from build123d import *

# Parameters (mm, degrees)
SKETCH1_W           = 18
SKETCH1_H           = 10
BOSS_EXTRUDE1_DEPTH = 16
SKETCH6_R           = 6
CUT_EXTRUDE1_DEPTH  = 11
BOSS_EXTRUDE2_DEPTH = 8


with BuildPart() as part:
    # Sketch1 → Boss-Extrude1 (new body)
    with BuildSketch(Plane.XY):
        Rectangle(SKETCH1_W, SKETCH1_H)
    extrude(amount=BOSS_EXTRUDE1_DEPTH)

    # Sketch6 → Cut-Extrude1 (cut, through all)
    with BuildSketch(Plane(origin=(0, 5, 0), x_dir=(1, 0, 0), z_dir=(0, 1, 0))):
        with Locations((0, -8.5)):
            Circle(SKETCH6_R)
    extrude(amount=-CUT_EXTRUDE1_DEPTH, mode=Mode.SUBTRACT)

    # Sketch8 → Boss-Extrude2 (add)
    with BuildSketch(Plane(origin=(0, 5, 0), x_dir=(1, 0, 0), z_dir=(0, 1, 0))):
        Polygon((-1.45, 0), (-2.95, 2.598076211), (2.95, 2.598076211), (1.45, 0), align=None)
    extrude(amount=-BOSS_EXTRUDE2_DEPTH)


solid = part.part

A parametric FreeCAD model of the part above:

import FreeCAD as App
import Part
import Sketcher

V = App.Vector
Q = App.Units.Quantity


def add_polygon(sketch, points):
    """Adds a closed chain of lines whose ends are joined by coincident constraints."""
    first, n = sketch.GeometryCount, len(points)
    for a, b in zip(points, points[1:] + points[:1]):
        sketch.addGeometry(Part.LineSegment(App.Vector(*a, 0), App.Vector(*b, 0)), False)
    for i in range(n):
        sketch.addConstraint(Sketcher.Constraint("Coincident", first + i, 2, first + (i + 1) % n, 1))

doc = App.newDocument("Part")
body = doc.addObject("PartDesign::Body", "Body")

# Sketch on XY plane
sketch1 = body.newObject("Sketcher::SketchObject", "Sketch")
sketch1.AttachmentSupport = (doc.getObject("XY_Plane"), [""])
sketch1.MapMode = "FlatFace"
add_polygon(sketch1, [(-9, 5), (-9, -5), (9, -5), (9, 5)])  # lines 0-3
sketch1.addConstraint(Sketcher.Constraint("Vertical", 0))
sketch1.addConstraint(Sketcher.Constraint("Horizontal", 1))
sketch1.addConstraint(Sketcher.Constraint("Vertical", 2))
sketch1.addConstraint(Sketcher.Constraint("Horizontal", 3))
sketch1.addConstraint(Sketcher.Constraint("Symmetric", 0, 2, 2, 2, -1, 1))
sketch1.addConstraint(Sketcher.Constraint("DistanceX", 1, 1, 1, 2, Q("18 mm")))
sketch1.addConstraint(Sketcher.Constraint("DistanceY", 0, 2, 0, 1, Q("10 mm")))
pad1 = body.newObject("PartDesign::Pad", "Pad")
pad1.Profile = sketch1
pad1.Length = 16

# Sketch on XZ plane
sketch2 = body.newObject("Sketcher::SketchObject", "Sketch001")
sketch2.AttachmentSupport = (doc.getObject("XZ_Plane"), [""])
sketch2.MapMode = "FlatFace"
sketch2.AttachmentOffset = App.Placement(V(0, 0, -5), App.Rotation())
sketch2.addGeometry(Part.Circle(V(0, 8, 0), V(0, 0, 1), 6), False)
sketch2.addConstraint(Sketcher.Constraint("PointOnObject", 0, 3, -2))
sketch2.addConstraint(Sketcher.Constraint("Diameter", 0, Q("12 mm")))
sketch2.addConstraint(Sketcher.Constraint("DistanceY", -1, 1, 0, 3, Q("8.5 mm")))
pocket1 = body.newObject("PartDesign::Pocket", "Pocket")
pocket1.Profile = sketch2
pocket1.Type = "ThroughAll"
pocket1.Reversed = True

# Sketch on XZ plane
sketch3 = body.newObject("Sketcher::SketchObject", "Sketch002")
sketch3.AttachmentSupport = (doc.getObject("XZ_Plane"), [""])
sketch3.MapMode = "FlatFace"
sketch3.AttachmentOffset = App.Placement(V(0, 0, -5), App.Rotation())
add_polygon(sketch3, [(-3, -2.6), (-1.4, 0), (1.4, 0), (3, -2.6)])  # lines 0-3
sketch3.addConstraint(Sketcher.Constraint("Horizontal", 1))
sketch3.addConstraint(Sketcher.Constraint("Horizontal", 3))
sketch3.addConstraint(Sketcher.Constraint("Symmetric", 0, 2, 1, 2, -1, 1))
sketch3.addConstraint(Sketcher.Constraint("Equal", 0, 2))
sketch3.addConstraint(Sketcher.Constraint("Angle", 0, Q("60 deg")))
sketch3.addConstraint(Sketcher.Constraint("Distance", 0, Q("3 mm")))
sketch3.addConstraint(Sketcher.Constraint("DistanceX", 1, 1, 1, 2, Q("2.9 mm")))
pad2 = body.newObject("PartDesign::Pad", "Pad001")
pad2.Profile = sketch3
pad2.Length = 8

doc.recompute()
